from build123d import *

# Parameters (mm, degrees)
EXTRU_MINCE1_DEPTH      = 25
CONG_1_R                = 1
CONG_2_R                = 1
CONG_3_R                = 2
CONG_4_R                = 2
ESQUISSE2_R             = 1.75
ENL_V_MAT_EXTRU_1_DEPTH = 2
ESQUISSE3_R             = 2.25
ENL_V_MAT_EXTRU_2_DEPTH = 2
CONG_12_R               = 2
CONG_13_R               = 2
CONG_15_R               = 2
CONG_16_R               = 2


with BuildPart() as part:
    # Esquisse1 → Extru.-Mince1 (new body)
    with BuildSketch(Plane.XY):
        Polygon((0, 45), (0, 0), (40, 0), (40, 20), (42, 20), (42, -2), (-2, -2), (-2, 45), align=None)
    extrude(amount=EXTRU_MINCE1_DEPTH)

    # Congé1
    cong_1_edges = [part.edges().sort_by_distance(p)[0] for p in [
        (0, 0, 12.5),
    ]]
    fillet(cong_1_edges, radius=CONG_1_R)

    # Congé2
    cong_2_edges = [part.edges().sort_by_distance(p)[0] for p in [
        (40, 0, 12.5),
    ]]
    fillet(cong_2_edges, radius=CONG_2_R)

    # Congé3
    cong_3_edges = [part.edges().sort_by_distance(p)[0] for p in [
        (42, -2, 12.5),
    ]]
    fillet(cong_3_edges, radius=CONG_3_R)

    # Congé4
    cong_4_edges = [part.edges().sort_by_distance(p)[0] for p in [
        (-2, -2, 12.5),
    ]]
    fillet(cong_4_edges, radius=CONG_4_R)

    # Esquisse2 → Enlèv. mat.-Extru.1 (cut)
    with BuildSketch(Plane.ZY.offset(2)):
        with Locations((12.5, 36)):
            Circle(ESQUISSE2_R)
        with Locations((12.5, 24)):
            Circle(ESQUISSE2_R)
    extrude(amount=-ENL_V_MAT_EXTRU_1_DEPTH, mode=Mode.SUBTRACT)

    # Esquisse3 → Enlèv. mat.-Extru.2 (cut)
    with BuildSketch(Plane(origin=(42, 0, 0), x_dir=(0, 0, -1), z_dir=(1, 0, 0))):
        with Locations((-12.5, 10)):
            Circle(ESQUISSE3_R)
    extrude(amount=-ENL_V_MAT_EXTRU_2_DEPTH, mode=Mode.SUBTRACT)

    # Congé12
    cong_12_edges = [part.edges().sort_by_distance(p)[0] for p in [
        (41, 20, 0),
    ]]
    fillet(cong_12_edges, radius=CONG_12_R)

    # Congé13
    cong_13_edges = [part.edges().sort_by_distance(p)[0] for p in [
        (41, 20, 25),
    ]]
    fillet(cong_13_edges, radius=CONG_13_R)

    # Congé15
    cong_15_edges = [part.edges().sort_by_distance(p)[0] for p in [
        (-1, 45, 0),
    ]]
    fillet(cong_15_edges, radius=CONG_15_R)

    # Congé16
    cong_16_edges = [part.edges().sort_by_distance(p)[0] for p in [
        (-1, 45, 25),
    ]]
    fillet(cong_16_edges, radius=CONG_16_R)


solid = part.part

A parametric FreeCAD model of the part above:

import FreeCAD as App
import Part
import Sketcher

V = App.Vector
Q = App.Units.Quantity


def edges_at(feature, points):
    """Names of the edges that pass closest to the given points."""
    edges = feature.Shape.Edges
    near = lambda p: min(range(len(edges)), key=lambda i: edges[i].distToShape(Part.Vertex(*p))[0])
    return sorted({f"Edge{near(p) + 1}" for p in points})


def add_polygon(sketch, points):
    """Adds a closed chain of lines whose ends are joined by coincident constraints."""
    first, n = sketch.GeometryCount, len(points)
    for a, b in zip(points, points[1:] + points[:1]):
        sketch.addGeometry(Part.LineSegment(App.Vector(*a, 0), App.Vector(*b, 0)), False)
    for i in range(n):
        sketch.addConstraint(Sketcher.Constraint("Coincident", first + i, 2, first + (i + 1) % n, 1))

doc = App.newDocument("Part")
body = doc.addObject("PartDesign::Body", "Body")

sketch1 = body.newObject("Sketcher::SketchObject", "Sketch")
sketch1.AttachmentSupport = (doc.getObject("XY_Plane"), [""])
sketch1.MapMode = "FlatFace"
add_polygon(sketch1, [(0, 0), (0, 45), (-2, 45), (-2, -2), (42, -2), (42, 20), (40, 20), (40, 0)])
sketch1.addConstraint(Sketcher.Constraint("Vertical", 0))
sketch1.addConstraint(Sketcher.Constraint("Horizontal", 1))
sketch1.addConstraint(Sketcher.Constraint("Vertical", 2))
sketch1.addConstraint(Sketcher.Constraint("Horizontal", 3))
sketch1.addConstraint(Sketcher.Constraint("Vertical", 4))
sketch1.addConstraint(Sketcher.Constraint("Horizontal", 5))
sketch1.addConstraint(Sketcher.Constraint("Vertical", 6))
sketch1.addConstraint(Sketcher.Constraint("Horizontal", 7))
sketch1.addConstraint(Sketcher.Constraint("Coincident", 7, 2, -1, 1))
sketch1.addConstraint(Sketcher.Constraint("Equal", 1, 5))
sketch1.addConstraint(Sketcher.Constraint("DistanceX", 1, 2, 1, 1, Q("2 mm")))
sketch1.addConstraint(Sketcher.Constraint("DistanceX", 3, 1, 3, 2, Q("44 mm")))
sketch1.addConstraint(Sketcher.Constraint("DistanceY", 0, 1, 0, 2, Q("45 mm")))
sketch1.addConstraint(Sketcher.Constraint("DistanceY", 2, 2, 2, 1, Q("47 mm")))
sketch1.addConstraint(Sketcher.Constraint("DistanceY", 4, 1, 4, 2, Q("22 mm")))
pad1 = body.newObject("PartDesign::Pad", "Pad")
pad1.Profile = sketch1
pad1.Length = 25
doc.recompute()

fillet = body.newObject("PartDesign::Fillet", "Fillet")
fillet.Base = (pad1, edges_at(pad1, [(0, 0, 12.5)]))
fillet.Radius = 1
doc.recompute()

fillet2 = body.newObject("PartDesign::Fillet", "Fillet001")
fillet2.Base = (fillet, edges_at(fillet, [(40, 0, 12.5)]))
fillet2.Radius = 1
doc.recompute()

fillet3 = body.newObject("PartDesign::Fillet", "Fillet002")
fillet3.Base = (fillet2, edges_at(fillet2, [(42, -2, 12.5)]))
fillet3.Radius = 2
doc.recompute()

fillet4 = body.newObject("PartDesign::Fillet", "Fillet003")
fillet4.Base = (fillet3, edges_at(fillet3, [(-2, -2, 12.5)]))
fillet4.Radius = 2

sketch2 = body.newObject("Sketcher::SketchObject", "Sketch001")
sketch2.AttachmentSupport = (doc.getObject("YZ_Plane"), [""])
sketch2.MapMode = "FlatFace"
sketch2.AttachmentOffset = App.Placement(V(0, 0, -2), App.Rotation())
sketch2.addGeometry(Part.Circle(V(36, 12.5, 0), V(0, 0, 1), 1.75), False)
sketch2.addGeometry(Part.Circle(V(24, 12.5, 0), V(0, 0, 1), 1.75), False)
sketch2.addConstraint(Sketcher.Constraint("Equal", 0, 1))
sketch2.addConstraint(Sketcher.Constraint("Horizontal", 0, 3, 1, 3))
sketch2.addConstraint(Sketcher.Constraint("Diameter", 0, Q("3.5 mm")))
sketch2.addConstraint(Sketcher.Constraint("DistanceX", -1, 1, 0, 3, Q("36 mm")))
sketch2.addConstraint(Sketcher.Constraint("DistanceX", -1, 1, 1, 3, Q("24 mm")))
sketch2.addConstraint(Sketcher.Constraint("DistanceY", -1, 1, 0, 3, Q("12.5 mm")))
pocket1 = body.newObject("PartDesign::Pocket", "Pocket")
pocket1.Profile = sketch2
pocket1.Length = 2
pocket1.Reversed = True

sketch3 = body.newObject("Sketcher::SketchObject", "Sketch002")
sketch3.AttachmentSupport = (doc.getObject("YZ_Plane"), [""])
sketch3.MapMode = "FlatFace"
sketch3.AttachmentOffset = App.Placement(V(0, 0, 42), App.Rotation())
sketch3.addGeometry(Part.Circle(V(10, 12.5, 0), V(0, 0, 1), 2.25), False)
sketch3.addConstraint(Sketcher.Constraint("Diameter", 0, Q("4.5 mm")))
sketch3.addConstraint(Sketcher.Constraint("DistanceX", -1, 1, 0, 3, Q("10 mm")))
sketch3.addConstraint(Sketcher.Constraint("DistanceY", -1, 1, 0, 3, Q("12.5 mm")))
pocket2 = body.newObject("PartDesign::Pocket", "Pocket001")
pocket2.Profile = sketch3
pocket2.Length = 2
doc.recompute()

fillet5 = body.newObject("PartDesign::Fillet", "Fillet004")
fillet5.Base = (pocket2, edges_at(pocket2, [(41, 20, 0)]))
fillet5.Radius = 2
doc.recompute()

fillet6 = body.newObject("PartDesign::Fillet", "Fillet005")
fillet6.Base = (fillet5, edges_at(fillet5, [(41, 20, 25)]))
fillet6.Radius = 2
doc.recompute()

fillet7 = body.newObject("PartDesign::Fillet", "Fillet006")
fillet7.Base = (fillet6, edges_at(fillet6, [(-1, 45, 0)]))
fillet7.Radius = 2
doc.recompute()

fillet8 = body.newObject("PartDesign::Fillet", "Fillet007")
fillet8.Base = (fillet7, edges_at(fillet7, [(-1, 45, 25)]))
fillet8.Radius = 2

doc.recompute()
